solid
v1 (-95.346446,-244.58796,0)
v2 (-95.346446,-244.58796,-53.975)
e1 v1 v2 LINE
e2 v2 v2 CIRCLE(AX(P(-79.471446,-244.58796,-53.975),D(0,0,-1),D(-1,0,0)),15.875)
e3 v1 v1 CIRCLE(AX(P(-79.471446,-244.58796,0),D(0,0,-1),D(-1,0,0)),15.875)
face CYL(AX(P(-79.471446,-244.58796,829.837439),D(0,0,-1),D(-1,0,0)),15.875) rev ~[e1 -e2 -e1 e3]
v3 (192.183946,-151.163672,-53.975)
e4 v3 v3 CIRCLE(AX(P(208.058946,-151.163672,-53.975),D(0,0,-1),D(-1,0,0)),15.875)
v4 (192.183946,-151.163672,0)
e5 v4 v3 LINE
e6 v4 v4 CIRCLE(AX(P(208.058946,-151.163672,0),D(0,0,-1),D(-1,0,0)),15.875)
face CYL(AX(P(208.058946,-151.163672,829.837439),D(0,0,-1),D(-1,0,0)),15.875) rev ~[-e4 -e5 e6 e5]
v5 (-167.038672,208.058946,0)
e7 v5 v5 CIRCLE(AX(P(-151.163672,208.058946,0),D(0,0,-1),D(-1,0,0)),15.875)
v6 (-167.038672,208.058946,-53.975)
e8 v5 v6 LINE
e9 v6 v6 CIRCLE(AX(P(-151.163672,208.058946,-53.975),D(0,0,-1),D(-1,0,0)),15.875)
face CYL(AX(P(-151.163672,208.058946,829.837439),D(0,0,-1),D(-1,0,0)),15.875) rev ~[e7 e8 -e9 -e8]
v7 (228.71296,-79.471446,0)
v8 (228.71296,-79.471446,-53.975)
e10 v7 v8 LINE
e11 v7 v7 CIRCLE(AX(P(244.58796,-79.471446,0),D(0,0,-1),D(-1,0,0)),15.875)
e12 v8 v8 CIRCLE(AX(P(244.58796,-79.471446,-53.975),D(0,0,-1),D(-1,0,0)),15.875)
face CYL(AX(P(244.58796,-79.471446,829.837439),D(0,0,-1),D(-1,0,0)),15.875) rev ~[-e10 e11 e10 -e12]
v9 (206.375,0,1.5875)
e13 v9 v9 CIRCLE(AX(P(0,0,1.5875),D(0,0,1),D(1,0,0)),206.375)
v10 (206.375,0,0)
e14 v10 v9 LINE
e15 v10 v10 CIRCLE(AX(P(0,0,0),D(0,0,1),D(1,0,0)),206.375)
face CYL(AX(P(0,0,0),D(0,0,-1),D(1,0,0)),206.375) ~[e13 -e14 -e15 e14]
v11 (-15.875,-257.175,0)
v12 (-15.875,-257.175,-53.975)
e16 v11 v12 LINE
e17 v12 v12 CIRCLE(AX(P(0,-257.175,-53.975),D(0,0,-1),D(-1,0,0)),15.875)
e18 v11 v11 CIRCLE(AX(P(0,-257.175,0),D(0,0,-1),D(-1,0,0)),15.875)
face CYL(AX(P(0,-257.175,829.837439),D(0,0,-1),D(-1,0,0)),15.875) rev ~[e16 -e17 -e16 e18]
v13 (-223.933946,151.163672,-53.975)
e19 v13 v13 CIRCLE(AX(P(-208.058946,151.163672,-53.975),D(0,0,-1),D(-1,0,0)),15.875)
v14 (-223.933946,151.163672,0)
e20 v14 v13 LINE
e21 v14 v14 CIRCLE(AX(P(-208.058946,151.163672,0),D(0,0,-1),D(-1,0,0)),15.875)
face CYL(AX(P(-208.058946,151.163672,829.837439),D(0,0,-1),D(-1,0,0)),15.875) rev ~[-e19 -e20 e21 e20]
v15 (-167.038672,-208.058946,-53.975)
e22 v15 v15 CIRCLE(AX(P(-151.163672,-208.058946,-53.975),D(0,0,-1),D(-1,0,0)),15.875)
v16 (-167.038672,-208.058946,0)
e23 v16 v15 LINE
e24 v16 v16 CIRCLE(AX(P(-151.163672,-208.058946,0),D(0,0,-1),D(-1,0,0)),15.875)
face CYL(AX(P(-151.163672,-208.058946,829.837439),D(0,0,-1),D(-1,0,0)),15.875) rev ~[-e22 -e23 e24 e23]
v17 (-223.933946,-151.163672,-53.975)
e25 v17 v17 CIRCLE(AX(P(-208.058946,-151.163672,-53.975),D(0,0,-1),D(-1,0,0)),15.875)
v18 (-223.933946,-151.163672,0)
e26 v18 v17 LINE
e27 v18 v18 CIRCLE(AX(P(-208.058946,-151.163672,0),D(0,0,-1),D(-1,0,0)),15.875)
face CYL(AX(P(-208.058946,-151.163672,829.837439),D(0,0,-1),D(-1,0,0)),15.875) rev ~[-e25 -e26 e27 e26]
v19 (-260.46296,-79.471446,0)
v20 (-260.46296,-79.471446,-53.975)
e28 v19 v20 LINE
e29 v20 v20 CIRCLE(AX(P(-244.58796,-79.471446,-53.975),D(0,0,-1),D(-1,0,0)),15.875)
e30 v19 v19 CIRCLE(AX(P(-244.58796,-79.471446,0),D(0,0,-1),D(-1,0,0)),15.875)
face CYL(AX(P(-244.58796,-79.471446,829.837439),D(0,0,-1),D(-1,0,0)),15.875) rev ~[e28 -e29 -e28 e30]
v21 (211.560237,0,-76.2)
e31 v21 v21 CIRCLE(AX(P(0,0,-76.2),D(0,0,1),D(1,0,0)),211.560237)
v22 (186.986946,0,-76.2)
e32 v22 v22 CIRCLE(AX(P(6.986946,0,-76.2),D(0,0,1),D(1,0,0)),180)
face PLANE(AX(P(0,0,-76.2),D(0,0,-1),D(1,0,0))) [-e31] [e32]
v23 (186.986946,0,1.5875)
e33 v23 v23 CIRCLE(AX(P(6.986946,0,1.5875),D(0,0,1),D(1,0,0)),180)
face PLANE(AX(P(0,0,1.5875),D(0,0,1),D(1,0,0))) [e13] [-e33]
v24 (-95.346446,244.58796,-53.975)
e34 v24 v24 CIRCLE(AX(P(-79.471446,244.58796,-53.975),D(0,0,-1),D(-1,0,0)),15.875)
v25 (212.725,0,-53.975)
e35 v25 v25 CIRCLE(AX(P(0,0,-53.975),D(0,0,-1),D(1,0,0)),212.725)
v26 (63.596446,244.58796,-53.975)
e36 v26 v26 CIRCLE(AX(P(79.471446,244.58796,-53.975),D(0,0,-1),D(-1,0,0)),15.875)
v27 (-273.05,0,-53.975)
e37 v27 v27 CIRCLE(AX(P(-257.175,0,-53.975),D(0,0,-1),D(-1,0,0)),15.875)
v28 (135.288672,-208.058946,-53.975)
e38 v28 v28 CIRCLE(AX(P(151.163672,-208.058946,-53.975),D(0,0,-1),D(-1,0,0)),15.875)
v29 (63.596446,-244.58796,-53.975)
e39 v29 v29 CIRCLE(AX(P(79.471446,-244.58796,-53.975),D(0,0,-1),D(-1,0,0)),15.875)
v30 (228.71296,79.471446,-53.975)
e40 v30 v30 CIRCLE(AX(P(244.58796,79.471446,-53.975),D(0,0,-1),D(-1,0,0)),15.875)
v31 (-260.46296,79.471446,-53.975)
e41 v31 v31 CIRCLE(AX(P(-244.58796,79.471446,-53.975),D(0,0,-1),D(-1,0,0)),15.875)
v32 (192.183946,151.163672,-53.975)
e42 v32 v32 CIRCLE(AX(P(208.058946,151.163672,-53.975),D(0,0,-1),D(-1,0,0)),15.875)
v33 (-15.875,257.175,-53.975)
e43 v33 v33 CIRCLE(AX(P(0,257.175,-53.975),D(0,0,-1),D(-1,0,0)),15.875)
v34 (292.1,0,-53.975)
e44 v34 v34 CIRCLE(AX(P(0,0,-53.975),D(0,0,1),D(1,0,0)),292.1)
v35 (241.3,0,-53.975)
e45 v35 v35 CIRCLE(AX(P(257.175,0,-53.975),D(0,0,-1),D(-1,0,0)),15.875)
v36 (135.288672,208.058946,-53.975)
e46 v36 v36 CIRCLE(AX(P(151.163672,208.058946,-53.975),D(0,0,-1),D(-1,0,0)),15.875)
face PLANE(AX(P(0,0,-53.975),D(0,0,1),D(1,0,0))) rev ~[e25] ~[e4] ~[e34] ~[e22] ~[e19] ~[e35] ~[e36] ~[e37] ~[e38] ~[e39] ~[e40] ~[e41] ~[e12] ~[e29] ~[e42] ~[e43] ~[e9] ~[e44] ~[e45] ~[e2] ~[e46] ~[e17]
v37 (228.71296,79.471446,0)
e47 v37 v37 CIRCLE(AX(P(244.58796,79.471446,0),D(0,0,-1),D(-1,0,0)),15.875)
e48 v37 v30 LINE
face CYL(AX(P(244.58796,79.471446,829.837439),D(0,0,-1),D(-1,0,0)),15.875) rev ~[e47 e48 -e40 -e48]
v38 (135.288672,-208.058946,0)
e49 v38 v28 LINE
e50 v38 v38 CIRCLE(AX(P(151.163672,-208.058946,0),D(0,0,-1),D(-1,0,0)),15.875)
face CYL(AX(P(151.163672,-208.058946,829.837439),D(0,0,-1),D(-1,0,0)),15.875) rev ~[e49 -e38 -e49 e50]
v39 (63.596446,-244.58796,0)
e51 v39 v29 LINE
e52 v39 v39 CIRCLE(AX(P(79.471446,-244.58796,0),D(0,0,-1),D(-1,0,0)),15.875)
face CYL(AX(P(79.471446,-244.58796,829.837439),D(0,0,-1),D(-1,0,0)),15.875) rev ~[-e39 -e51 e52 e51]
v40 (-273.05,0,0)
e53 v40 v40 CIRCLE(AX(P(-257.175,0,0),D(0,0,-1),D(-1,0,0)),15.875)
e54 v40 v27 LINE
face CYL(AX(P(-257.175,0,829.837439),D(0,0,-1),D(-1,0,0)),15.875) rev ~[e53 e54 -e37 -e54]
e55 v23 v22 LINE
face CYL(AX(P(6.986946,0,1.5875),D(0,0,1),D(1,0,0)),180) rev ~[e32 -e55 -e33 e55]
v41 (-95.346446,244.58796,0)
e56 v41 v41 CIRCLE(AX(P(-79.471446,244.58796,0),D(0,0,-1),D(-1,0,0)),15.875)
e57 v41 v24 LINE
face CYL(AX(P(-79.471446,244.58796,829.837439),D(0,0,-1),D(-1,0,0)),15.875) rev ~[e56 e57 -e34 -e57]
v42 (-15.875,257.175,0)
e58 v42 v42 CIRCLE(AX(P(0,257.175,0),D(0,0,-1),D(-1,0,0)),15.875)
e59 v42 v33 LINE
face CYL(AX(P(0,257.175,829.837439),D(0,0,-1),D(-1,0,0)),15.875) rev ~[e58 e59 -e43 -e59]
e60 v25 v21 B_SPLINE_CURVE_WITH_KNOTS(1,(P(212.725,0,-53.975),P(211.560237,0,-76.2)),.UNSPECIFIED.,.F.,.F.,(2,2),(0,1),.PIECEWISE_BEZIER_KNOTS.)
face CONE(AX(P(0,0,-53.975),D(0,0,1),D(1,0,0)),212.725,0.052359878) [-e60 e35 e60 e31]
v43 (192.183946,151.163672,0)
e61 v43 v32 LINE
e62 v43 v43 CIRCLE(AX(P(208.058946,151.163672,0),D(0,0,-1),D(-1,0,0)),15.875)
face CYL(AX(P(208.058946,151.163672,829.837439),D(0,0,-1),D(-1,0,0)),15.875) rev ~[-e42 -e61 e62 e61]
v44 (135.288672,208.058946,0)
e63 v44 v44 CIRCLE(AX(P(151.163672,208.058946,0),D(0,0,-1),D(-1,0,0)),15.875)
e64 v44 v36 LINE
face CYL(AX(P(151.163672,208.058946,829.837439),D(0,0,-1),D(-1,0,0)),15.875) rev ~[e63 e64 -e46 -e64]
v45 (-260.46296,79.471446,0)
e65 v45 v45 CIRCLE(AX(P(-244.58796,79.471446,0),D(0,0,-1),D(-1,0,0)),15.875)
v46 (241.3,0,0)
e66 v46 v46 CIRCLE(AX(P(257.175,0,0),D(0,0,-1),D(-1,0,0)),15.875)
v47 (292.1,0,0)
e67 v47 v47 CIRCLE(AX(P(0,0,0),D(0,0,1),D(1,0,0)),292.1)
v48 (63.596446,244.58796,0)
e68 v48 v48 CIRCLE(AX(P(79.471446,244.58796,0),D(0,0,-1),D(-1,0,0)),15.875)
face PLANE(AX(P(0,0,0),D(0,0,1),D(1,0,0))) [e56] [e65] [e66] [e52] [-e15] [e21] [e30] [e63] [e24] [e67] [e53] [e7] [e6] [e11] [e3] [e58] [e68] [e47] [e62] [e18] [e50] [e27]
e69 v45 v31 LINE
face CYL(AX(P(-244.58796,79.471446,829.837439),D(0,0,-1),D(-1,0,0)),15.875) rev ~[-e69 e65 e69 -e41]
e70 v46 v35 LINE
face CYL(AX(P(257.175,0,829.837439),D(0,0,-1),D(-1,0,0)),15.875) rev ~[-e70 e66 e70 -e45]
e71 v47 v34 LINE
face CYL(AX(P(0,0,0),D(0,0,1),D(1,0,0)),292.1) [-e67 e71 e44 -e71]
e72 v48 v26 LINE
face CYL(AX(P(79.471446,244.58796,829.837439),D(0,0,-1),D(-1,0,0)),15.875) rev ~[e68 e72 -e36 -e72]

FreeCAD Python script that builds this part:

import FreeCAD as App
import Part
import Sketcher

V = App.Vector
Q = App.Units.Quantity

doc = App.newDocument("Part")
body = doc.addObject("PartDesign::Body", "Body")

sketch1 = body.newObject("Sketcher::SketchObject", "Sketch")
sketch1.AttachmentSupport = (doc.getObject("XY_Plane"), [""])
sketch1.MapMode = "FlatFace"
sketch1.addGeometry(Part.Circle(V(0, 0, 0), V(0, 0, 1), 292), False)
sketch1.addConstraint(Sketcher.Constraint("Coincident", 0, 3, -1, 1))
sketch1.addConstraint(Sketcher.Constraint("Diameter", 0, Q("23 in")))
pad1 = body.newObject("PartDesign::Pad", "Pad")
pad1.Profile = sketch1
pad1.Length = Q("2.125 in")
pad1.Reversed = True

sketch2 = body.newObject("Sketcher::SketchObject", "Sketch001")
sketch2.AttachmentSupport = (doc.getObject("XY_Plane"), [""])
sketch2.MapMode = "FlatFace"
sketch2.addGeometry(Part.Circle(V(0, 0, 0), V(0, 0, 1), 206), False)
sketch2.addConstraint(Sketcher.Constraint("Coincident", 0, 3, -1, 1))
sketch2.addConstraint(Sketcher.Constraint("Diameter", 0, Q("16.25 in")))
pad2 = body.newObject("PartDesign::Pad", "Pad001")
pad2.Profile = sketch2
pad2.Length = Q("0.0625 in")

sketch3 = body.newObject("Sketcher::SketchObject", "Sketch002")
sketch3.AttachmentSupport = (doc.getObject("XY_Plane"), [""])
sketch3.MapMode = "FlatFace"
sketch3.AttachmentOffset = App.Placement(V(0, 0, -2.125 * 25.4), App.Rotation())
sketch3.addGeometry(Part.Circle(V(0, 0, 0), V(0, 0, 1), 213), False)
sketch3.addConstraint(Sketcher.Constraint("Coincident", 0, 3, -1, 1))
sketch3.addConstraint(Sketcher.Constraint("Diameter", 0, Q("16.75 in")))
pad3 = body.newObject("PartDesign::Pad", "Pad002")
pad3.Profile = sketch3
pad3.Length = Q("0.875 in")
pad3.Reversed = True
pad3.TaperAngle = -3

sketch4 = body.newObject("Sketcher::SketchObject", "Sketch003")
sketch4.AttachmentSupport = (doc.getObject("XY_Plane"), [""])
sketch4.MapMode = "FlatFace"
sketch4.AttachmentOffset = App.Placement(V(0, 0, 0.0625 * 25.4), App.Rotation())
sketch4.addGeometry(Part.Circle(V(7, 0, 0), V(0, 0, 1), 180), False)
sketch4.addConstraint(Sketcher.Constraint("PointOnObject", 0, 3, -1))
sketch4.addConstraint(Sketcher.Constraint("Diameter", 0, Q("360 mm")))
sketch4.addConstraint(Sketcher.Constraint("DistanceX", -1, 1, 0, 3, Q("6.986946 mm")))
pocket1 = body.newObject("PartDesign::Pocket", "Pocket")
pocket1.Profile = sketch4
pocket1.Type = "ThroughAll"

sketch5 = body.newObject("Sketcher::SketchObject", "Sketch004")
sketch5.AttachmentSupport = (doc.getObject("XY_Plane"), [""])
sketch5.MapMode = "FlatFace"
sketch5.addGeometry(Part.Circle(V(245, 79, 0), V(0, 0, 1), 16), False)
sketch5.addGeometry(Part.Circle(V(208, 151, 0), V(0, 0, 1), 16), False)
sketch5.addGeometry(Part.Circle(V(151, 208, 0), V(0, 0, 1), 16), False)
sketch5.addGeometry(Part.Circle(V(79, 245, 0), V(0, 0, 1), 16), False)
sketch5.addGeometry(Part.Circle(V(0, 257, 0), V(0, 0, 1), 16), False)
sketch5.addGeometry(Part.Circle(V(-79, 245, 0), V(0, 0, 1), 16), False)
sketch5.addGeometry(Part.Circle(V(-151, 208, 0), V(0, 0, 1), 16), False)
sketch5.addGeometry(Part.Circle(V(-208, 151, 0), V(0, 0, 1), 16), False)
sketch5.addGeometry(Part.Circle(V(-245, 79, 0), V(0, 0, 1), 16), False)
sketch5.addGeometry(Part.Circle(V(-257, 0, 0), V(0, 0, 1), 16), False)
sketch5.addGeometry(Part.Circle(V(-245, -79, 0), V(0, 0, 1), 16), False)
sketch5.addGeometry(Part.Circle(V(-208, -151, 0), V(0, 0, 1), 16), False)
sketch5.addGeometry(Part.Circle(V(-151, -208, 0), V(0, 0, 1), 16), False)
sketch5.addGeometry(Part.Circle(V(-79, -245, 0), V(0, 0, 1), 16), False)
sketch5.addGeometry(Part.Circle(V(0, -257, 0), V(0, 0, 1), 16), False)
sketch5.addGeometry(Part.Circle(V(79, -245, 0), V(0, 0, 1), 16), False)
sketch5.addGeometry(Part.Circle(V(151, -208, 0), V(0, 0, 1), 16), False)
sketch5.addGeometry(Part.Circle(V(208, -151, 0), V(0, 0, 1), 16), False)
sketch5.addGeometry(Part.Circle(V(245, -79, 0), V(0, 0, 1), 16), False)
sketch5.addGeometry(Part.Circle(V(257, 0, 0), V(0, 0, 1), 16), False)
sketch5.addConstraint(Sketcher.Constraint("Equal", 0, 1))
sketch5.addConstraint(Sketcher.Constraint("Equal", 1, 2))
sketch5.addConstraint(Sketcher.Constraint("Equal", 2, 3))
sketch5.addConstraint(Sketcher.Constraint("Equal", 3, 4))
sketch5.addConstraint(Sketcher.Constraint("Equal", 4, 5))
sketch5.addConstraint(Sketcher.Constraint("Equal", 5, 6))
sketch5.addConstraint(Sketcher.Constraint("Equal", 6, 7))
sketch5.addConstraint(Sketcher.Constraint("Equal", 7, 8))
sketch5.addConstraint(Sketcher.Constraint("Equal", 8, 9))
sketch5.addConstraint(Sketcher.Constraint("Equal", 9, 10))
sketch5.addConstraint(Sketcher.Constraint("Equal", 10, 11))
sketch5.addConstraint(Sketcher.Constraint("Equal", 11, 12))
sketch5.addConstraint(Sketcher.Constraint("Equal", 12, 13))
sketch5.addConstraint(Sketcher.Constraint("Equal", 13, 14))
sketch5.addConstraint(Sketcher.Constraint("Equal", 14, 15))
sketch5.addConstraint(Sketcher.Constraint("Equal", 15, 16))
sketch5.addConstraint(Sketcher.Constraint("Equal", 16, 17))
sketch5.addConstraint(Sketcher.Constraint("Equal", 17, 18))
sketch5.addConstraint(Sketcher.Constraint("Equal", 18, 19))
sketch5.addConstraint(Sketcher.Constraint("Symmetric", 0, 3, 10, 3, -1, 1))
sketch5.addConstraint(Sketcher.Constraint("Symmetric", 1, 3, 11, 3, -1, 1))
sketch5.addConstraint(Sketcher.Constraint("Symmetric", 2, 3, 12, 3, -1, 1))
sketch5.addConstraint(Sketcher.Constraint("Symmetric", 3, 3, 13, 3, -1, 1))
sketch5.addConstraint(Sketcher.Constraint("Symmetric", 4, 3, 14, 3, -1, 1))
sketch5.addConstraint(Sketcher.Constraint("Symmetric", 5, 3, 15, 3, -1, 1))
sketch5.addConstraint(Sketcher.Constraint("Symmetric", 6, 3, 16, 3, -1, 1))
sketch5.addConstraint(Sketcher.Constraint("Symmetric", 7, 3, 17, 3, -1, 1))
sketch5.addConstraint(Sketcher.Constraint("Symmetric", 8, 3, 18, 3, -1, 1))
sketch5.addConstraint(Sketcher.Constraint("Symmetric", 9, 3, 19, 3, -1, 1))
sketch5.addConstraint(Sketcher.Constraint("Symmetric", 3, 3, 5, 3, -2))
sketch5.addConstraint(Sketcher.Constraint("Symmetric", 2, 3, 6, 3, -2))
sketch5.addConstraint(Sketcher.Constraint("Symmetric", 1, 3, 7, 3, -2))
sketch5.addConstraint(Sketcher.Constraint("Symmetric", 0, 3, 8, 3, -2))
sketch5.addConstraint(Sketcher.Constraint("PointOnObject", 4, 3, -2))
sketch5.addConstraint(Sketcher.Constraint("PointOnObject", 9, 3, -1))
sketch5.addConstraint(Sketcher.Constraint("Diameter", 0, Q("1.25 in")))
sketch5.addConstraint(Sketcher.Constraint("DistanceY", -1, 1, 4, 3, Q("10.125 in")))
sketch5.addConstraint(Sketcher.Constraint("DistanceX", 9, 3, -1, 1, Q("10.125 in")))
sketch5.addConstraint(Sketcher.Constraint("DistanceY", 0, 3, 2, 3, Q("5.0625 in")))
sketch5.addConstraint(Sketcher.Constraint("DistanceX", 3, 3, 1, 3, Q("5.0625 in")))
sketch5.addConstraint(Sketcher.Constraint("DistanceX", -1, 1, 0, 3, Q("244.58796 mm")))
sketch5.addConstraint(Sketcher.Constraint("DistanceY", -1, 1, 3, 3, Q("244.58796 mm")))
sketch5.addConstraint(Sketcher.Constraint("DistanceX", 5, 3, 3, 3, Q("158.942891 mm")))
sketch5.addConstraint(Sketcher.Constraint("DistanceY", 10, 3, 8, 3, Q("158.942891 mm")))
sketch5.addConstraint(Sketcher.Constraint("DistanceY", -1, 1, 1, 3, Q("151.163672 mm")))
sketch5.addConstraint(Sketcher.Constraint("DistanceX", -1, 1, 2, 3, Q("151.163672 mm")))
doc.recompute()
hole = body.newObject("PartDesign::Hole", "Hole")
hole.Profile = sketch5
hole.ThreadType = "None"
hole.Diameter = Q("1.25 in")
hole.DepthType = "ThroughAll"

doc.recompute()
